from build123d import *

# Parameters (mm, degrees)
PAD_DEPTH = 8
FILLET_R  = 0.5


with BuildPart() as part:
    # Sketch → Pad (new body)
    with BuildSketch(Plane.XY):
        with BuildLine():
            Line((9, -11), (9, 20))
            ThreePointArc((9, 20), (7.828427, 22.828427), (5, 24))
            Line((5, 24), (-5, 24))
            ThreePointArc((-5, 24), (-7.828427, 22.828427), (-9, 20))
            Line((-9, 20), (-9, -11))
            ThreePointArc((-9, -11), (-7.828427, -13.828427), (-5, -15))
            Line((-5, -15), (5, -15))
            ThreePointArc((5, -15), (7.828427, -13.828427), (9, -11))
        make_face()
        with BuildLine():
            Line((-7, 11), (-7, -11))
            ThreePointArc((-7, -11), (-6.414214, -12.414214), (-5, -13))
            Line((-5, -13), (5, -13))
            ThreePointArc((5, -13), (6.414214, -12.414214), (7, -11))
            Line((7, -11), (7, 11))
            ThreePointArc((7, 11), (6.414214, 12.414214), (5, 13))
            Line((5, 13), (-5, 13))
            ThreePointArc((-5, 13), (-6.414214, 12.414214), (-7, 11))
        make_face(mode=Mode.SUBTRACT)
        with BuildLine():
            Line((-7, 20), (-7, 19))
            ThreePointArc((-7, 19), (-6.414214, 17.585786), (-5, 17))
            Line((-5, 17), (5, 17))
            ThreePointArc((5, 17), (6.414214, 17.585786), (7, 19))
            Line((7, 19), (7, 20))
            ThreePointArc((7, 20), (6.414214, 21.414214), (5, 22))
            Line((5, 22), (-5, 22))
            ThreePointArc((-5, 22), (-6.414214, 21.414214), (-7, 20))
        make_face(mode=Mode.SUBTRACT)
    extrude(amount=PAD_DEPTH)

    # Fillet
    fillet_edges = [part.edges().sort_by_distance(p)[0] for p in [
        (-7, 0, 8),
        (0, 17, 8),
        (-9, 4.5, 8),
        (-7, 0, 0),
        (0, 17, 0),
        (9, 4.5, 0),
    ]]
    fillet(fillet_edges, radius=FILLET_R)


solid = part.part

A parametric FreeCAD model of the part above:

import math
import FreeCAD as App
import Part
import Sketcher

V = App.Vector


def edges_at(feature, points):
    """Names of the edges that pass closest to the given points."""
    edges = feature.Shape.Edges
    near = lambda p: min(range(len(edges)), key=lambda i: edges[i].distToShape(Part.Vertex(*p))[0])
    return sorted({f"Edge{near(p) + 1}" for p in points})

doc = App.newDocument("Part")
body = doc.addObject("PartDesign::Body", "Body")

# Sketch on XY plane
sketch1 = body.newObject("Sketcher::SketchObject", "Sketch")
sketch1.AttachmentSupport = (doc.getObject("XY_Plane"), [""])
sketch1.MapMode = "FlatFace"
sketch1.addGeometry([
    Part.LineSegment(V(9, -11, 0), V(9, 20, 0)),  # 0
    Part.ArcOfCircle(Part.Circle(V(5, 20, 0), V(0, 0, 1), 4), math.radians(0), math.radians(90)),  # 1
    Part.LineSegment(V(5, 24, 0), V(-5, 24, 0)),  # 2
    Part.ArcOfCircle(Part.Circle(V(-5, 20, 0), V(0, 0, 1), 4), math.radians(90), math.radians(180)),  # 3
    Part.LineSegment(V(-9, 20, 0), V(-9, -11, 0)),  # 4
    Part.ArcOfCircle(Part.Circle(V(-5, -11, 0), V(0, 0, 1), 4), math.radians(-180), math.radians(-90)),  # 5
    Part.LineSegment(V(-5, -15, 0), V(5, -15, 0)),  # 6
    Part.ArcOfCircle(Part.Circle(V(5, -11, 0), V(0, 0, 1), 4), math.radians(-90), math.radians(0)),  # 7
    Part.LineSegment(V(-7, -11, 0), V(-7, 11, 0)),  # 8
    Part.ArcOfCircle(Part.Circle(V(-5, 11, 0), V(0, 0, 1), 2), math.radians(90), math.radians(180)),  # 9
    Part.LineSegment(V(-5, 13, 0), V(5, 13, 0)),  # 10
    Part.ArcOfCircle(Part.Circle(V(5, 11, 0), V(0, 0, 1), 2), math.radians(0), math.radians(90)),  # 11
    Part.LineSegment(V(7, 11, 0), V(7, -11, 0)),  # 12
    Part.ArcOfCircle(Part.Circle(V(5, -11, 0), V(0, 0, 1), 2), math.radians(-90), math.radians(0)),  # 13
    Part.LineSegment(V(5, -13, 0), V(-5, -13, 0)),  # 14
    Part.ArcOfCircle(Part.Circle(V(-5, -11, 0), V(0, 0, 1), 2), math.radians(180), math.radians(270)),  # 15
    Part.LineSegment(V(-7, 19, 0), V(-7, 20, 0)),  # 16
    Part.ArcOfCircle(Part.Circle(V(-5, 20, 0), V(0, 0, 1), 2), math.radians(90), math.radians(180)),  # 17
    Part.LineSegment(V(-5, 22, 0), V(5, 22, 0)),  # 18
    Part.ArcOfCircle(Part.Circle(V(5, 20, 0), V(0, 0, 1), 2), math.radians(0), math.radians(90)),  # 19
    Part.LineSegment(V(7, 20, 0), V(7, 19, 0)),  # 20
    Part.ArcOfCircle(Part.Circle(V(5, 19, 0), V(0, 0, 1), 2), math.radians(-90), math.radians(0)),  # 21
    Part.LineSegment(V(5, 17, 0), V(-5, 17, 0)),  # 22
    Part.ArcOfCircle(Part.Circle(V(-5, 19, 0), V(0, 0, 1), 2), math.radians(180), math.radians(270)),  # 23
], False)
sketch1.addConstraint([
    Sketcher.Constraint("Tangent", 0, 2, 1, 1),
    Sketcher.Constraint("Tangent", 1, 2, 2, 1),
    Sketcher.Constraint("Tangent", 2, 2, 3, 1),
    Sketcher.Constraint("Tangent", 3, 2, 4, 1),
    Sketcher.Constraint("Tangent", 4, 2, 5, 1),
    Sketcher.Constraint("Tangent", 5, 2, 6, 1),
    Sketcher.Constraint("Tangent", 6, 2, 7, 1),
    Sketcher.Constraint("Tangent", 7, 2, 0, 1),
    Sketcher.Constraint("Tangent", 8, 2, 9, 2),
    Sketcher.Constraint("Tangent", 9, 1, 10, 1),
    Sketcher.Constraint("Tangent", 10, 2, 11, 2),
    Sketcher.Constraint("Tangent", 11, 1, 12, 1),
    Sketcher.Constraint("Tangent", 12, 2, 13, 2),
    Sketcher.Constraint("Tangent", 13, 1, 14, 1),
    Sketcher.Constraint("Tangent", 14, 2, 15, 2),
    Sketcher.Constraint("Tangent", 15, 1, 8, 1),
    Sketcher.Constraint("Tangent", 16, 2, 17, 2),
    Sketcher.Constraint("Tangent", 17, 1, 18, 1),
    Sketcher.Constraint("Tangent", 18, 2, 19, 2),
    Sketcher.Constraint("Tangent", 19, 1, 20, 1),
    Sketcher.Constraint("Tangent", 20, 2, 21, 2),
    Sketcher.Constraint("Tangent", 21, 1, 22, 1),
    Sketcher.Constraint("Tangent", 22, 2, 23, 2),
    Sketcher.Constraint("Tangent", 23, 1, 16, 1),
    Sketcher.Constraint("Vertical", 0),
    Sketcher.Constraint("Horizontal", 2),
    Sketcher.Constraint("Vertical", 4),
    Sketcher.Constraint("Horizontal", 6),
    Sketcher.Constraint("Vertical", 8),
    Sketcher.Constraint("Horizontal", 10),
    Sketcher.Constraint("Vertical", 12),
    Sketcher.Constraint("Horizontal", 14),
    Sketcher.Constraint("Vertical", 16),
    Sketcher.Constraint("Horizontal", 18),
    Sketcher.Constraint("Vertical", 20),
    Sketcher.Constraint("Horizontal", 22),
    Sketcher.Constraint("Coincident", 13, 3, 7, 3),
    Sketcher.Constraint("Coincident", 15, 3, 5, 3),
    Sketcher.Constraint("Coincident", 17, 3, 3, 3),
    Sketcher.Constraint("Coincident", 19, 3, 1, 3),
    Sketcher.Constraint("Equal", 1, 3),
    Sketcher.Constraint("Equal", 3, 5),
    Sketcher.Constraint("Equal", 5, 7),
    Sketcher.Constraint("Equal", 9, 11),
    Sketcher.Constraint("Equal", 11, 13),
    Sketcher.Constraint("Equal", 15, 17),
    Sketcher.Constraint("Equal", 19, 21),
    Sketcher.Constraint("Equal", 21, 23),
    Sketcher.Constraint("Symmetric", 7, 3, 9, 3, -1, 1),
    Sketcher.Constraint("Radius", 1, 4.0),
    Sketcher.Constraint("Radius", 9, 1.999999),
    Sketcher.Constraint("DistanceX", 2, 2, 2, 1, 10.0),
    Sketcher.Constraint("DistanceY", 0, 1, 0, 2, 31.0),
    Sketcher.Constraint("DistanceY", 8, 1, 8, 2, 22.0),
    Sketcher.Constraint("DistanceY", 16, 1, 16, 2, 1.0),
])
pad1 = body.newObject("PartDesign::Pad", "Pad")
pad1.Profile = sketch1
pad1.Length = 8
doc.recompute()

fillet = body.newObject("PartDesign::Fillet", "Fillet")
fillet.Base = (pad1, edges_at(pad1, [
    (-7, 0, 8),
    (0, 17, 8),
    (-9, 4.5, 8),
    (-7, 0, 0),
    (0, 17, 0),
    (9, 4.5, 0),
]))
fillet.Radius = 0.5

doc.recompute()
